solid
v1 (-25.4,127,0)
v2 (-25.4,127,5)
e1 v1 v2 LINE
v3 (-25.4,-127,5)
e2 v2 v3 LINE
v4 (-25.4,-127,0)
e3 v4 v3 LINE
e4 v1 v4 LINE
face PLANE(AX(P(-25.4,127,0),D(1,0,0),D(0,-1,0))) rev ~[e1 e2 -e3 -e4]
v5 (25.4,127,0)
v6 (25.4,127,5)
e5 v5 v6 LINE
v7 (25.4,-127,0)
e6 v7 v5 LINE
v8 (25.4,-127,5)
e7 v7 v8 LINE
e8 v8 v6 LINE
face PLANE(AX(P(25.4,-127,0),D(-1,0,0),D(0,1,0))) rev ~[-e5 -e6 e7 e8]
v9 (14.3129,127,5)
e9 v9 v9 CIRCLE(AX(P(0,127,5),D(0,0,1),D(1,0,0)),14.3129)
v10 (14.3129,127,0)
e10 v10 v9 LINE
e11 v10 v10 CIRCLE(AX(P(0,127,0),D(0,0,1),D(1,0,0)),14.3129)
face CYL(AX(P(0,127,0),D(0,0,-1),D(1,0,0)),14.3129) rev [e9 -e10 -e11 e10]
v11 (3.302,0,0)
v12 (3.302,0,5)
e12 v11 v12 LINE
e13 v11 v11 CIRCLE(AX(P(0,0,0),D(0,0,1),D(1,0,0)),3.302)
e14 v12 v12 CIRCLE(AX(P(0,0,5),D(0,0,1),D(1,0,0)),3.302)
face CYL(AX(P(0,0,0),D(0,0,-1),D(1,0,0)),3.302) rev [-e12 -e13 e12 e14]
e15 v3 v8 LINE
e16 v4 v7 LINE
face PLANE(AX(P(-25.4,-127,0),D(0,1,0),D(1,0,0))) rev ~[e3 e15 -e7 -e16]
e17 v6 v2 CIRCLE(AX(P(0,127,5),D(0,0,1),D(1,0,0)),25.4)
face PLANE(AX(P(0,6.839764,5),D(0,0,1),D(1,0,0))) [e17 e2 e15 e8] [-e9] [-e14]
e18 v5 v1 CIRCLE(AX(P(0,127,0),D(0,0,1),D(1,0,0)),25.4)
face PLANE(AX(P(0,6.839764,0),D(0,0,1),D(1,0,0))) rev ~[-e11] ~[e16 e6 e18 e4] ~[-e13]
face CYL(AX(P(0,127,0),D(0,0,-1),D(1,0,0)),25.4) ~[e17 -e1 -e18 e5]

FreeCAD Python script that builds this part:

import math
import FreeCAD as App
import Part
import Sketcher

V = App.Vector
Q = App.Units.Quantity

doc = App.newDocument("Part")
body = doc.addObject("PartDesign::Body", "Body")

sketch1 = doc.addObject("Sketcher::SketchObject", "Sketch")
body.addObject(sketch1)
sketch1.AttachmentSupport = (doc.XY_Plane, [""])
sketch1.MapMode = "FlatFace"
sketch1.addGeometry([
    Part.LineSegment(V(-25.4, -127, 0), V(25.4, -127, 0)),
    Part.LineSegment(V(25.4, -127, 0), V(25.4, 127, 0)),
    Part.ArcOfCircle(Part.Circle(V(0, 127, 0), V(0, 0, 1), 25.4), math.radians(0), math.radians(180)),
    Part.LineSegment(V(-25.4, 127, 0), V(-25.4, -127, 0)),
    Part.Circle(V(0, 0, 0), V(0, 0, 1), 3.3),
    Part.Circle(V(0, 127, 0), V(0, 0, 1), 14.3),
], False)
sketch1.addConstraint([
    Sketcher.Constraint("Coincident", 0, 2, 1, 1),
    Sketcher.Constraint("Tangent", 1, 2, 2, 1),
    Sketcher.Constraint("Tangent", 2, 2, 3, 1),
    Sketcher.Constraint("Coincident", 3, 2, 0, 1),
    Sketcher.Constraint("Horizontal", 0),
    Sketcher.Constraint("Vertical", 1),
    Sketcher.Constraint("Vertical", 3),
    Sketcher.Constraint("Coincident", 4, 3, -1, 1),
    Sketcher.Constraint("Coincident", 5, 3, 2, 3),
    Sketcher.Constraint("Symmetric", 0, 2, 2, 2, -1, 1),
    Sketcher.Constraint("Radius", 2, Q("1 in")),
    Sketcher.Constraint("Diameter", 4, Q("0.26 in")),
    Sketcher.Constraint("DistanceY", 1, 1, 1, 2, Q("10 in")),
    Sketcher.Constraint("Diameter", 5, Q("1.127 in")),
])
pad1 = doc.addObject("PartDesign::Pad", "Pad")
body.addObject(pad1)
pad1.Profile = sketch1
pad1.Length = 5

doc.recompute()
